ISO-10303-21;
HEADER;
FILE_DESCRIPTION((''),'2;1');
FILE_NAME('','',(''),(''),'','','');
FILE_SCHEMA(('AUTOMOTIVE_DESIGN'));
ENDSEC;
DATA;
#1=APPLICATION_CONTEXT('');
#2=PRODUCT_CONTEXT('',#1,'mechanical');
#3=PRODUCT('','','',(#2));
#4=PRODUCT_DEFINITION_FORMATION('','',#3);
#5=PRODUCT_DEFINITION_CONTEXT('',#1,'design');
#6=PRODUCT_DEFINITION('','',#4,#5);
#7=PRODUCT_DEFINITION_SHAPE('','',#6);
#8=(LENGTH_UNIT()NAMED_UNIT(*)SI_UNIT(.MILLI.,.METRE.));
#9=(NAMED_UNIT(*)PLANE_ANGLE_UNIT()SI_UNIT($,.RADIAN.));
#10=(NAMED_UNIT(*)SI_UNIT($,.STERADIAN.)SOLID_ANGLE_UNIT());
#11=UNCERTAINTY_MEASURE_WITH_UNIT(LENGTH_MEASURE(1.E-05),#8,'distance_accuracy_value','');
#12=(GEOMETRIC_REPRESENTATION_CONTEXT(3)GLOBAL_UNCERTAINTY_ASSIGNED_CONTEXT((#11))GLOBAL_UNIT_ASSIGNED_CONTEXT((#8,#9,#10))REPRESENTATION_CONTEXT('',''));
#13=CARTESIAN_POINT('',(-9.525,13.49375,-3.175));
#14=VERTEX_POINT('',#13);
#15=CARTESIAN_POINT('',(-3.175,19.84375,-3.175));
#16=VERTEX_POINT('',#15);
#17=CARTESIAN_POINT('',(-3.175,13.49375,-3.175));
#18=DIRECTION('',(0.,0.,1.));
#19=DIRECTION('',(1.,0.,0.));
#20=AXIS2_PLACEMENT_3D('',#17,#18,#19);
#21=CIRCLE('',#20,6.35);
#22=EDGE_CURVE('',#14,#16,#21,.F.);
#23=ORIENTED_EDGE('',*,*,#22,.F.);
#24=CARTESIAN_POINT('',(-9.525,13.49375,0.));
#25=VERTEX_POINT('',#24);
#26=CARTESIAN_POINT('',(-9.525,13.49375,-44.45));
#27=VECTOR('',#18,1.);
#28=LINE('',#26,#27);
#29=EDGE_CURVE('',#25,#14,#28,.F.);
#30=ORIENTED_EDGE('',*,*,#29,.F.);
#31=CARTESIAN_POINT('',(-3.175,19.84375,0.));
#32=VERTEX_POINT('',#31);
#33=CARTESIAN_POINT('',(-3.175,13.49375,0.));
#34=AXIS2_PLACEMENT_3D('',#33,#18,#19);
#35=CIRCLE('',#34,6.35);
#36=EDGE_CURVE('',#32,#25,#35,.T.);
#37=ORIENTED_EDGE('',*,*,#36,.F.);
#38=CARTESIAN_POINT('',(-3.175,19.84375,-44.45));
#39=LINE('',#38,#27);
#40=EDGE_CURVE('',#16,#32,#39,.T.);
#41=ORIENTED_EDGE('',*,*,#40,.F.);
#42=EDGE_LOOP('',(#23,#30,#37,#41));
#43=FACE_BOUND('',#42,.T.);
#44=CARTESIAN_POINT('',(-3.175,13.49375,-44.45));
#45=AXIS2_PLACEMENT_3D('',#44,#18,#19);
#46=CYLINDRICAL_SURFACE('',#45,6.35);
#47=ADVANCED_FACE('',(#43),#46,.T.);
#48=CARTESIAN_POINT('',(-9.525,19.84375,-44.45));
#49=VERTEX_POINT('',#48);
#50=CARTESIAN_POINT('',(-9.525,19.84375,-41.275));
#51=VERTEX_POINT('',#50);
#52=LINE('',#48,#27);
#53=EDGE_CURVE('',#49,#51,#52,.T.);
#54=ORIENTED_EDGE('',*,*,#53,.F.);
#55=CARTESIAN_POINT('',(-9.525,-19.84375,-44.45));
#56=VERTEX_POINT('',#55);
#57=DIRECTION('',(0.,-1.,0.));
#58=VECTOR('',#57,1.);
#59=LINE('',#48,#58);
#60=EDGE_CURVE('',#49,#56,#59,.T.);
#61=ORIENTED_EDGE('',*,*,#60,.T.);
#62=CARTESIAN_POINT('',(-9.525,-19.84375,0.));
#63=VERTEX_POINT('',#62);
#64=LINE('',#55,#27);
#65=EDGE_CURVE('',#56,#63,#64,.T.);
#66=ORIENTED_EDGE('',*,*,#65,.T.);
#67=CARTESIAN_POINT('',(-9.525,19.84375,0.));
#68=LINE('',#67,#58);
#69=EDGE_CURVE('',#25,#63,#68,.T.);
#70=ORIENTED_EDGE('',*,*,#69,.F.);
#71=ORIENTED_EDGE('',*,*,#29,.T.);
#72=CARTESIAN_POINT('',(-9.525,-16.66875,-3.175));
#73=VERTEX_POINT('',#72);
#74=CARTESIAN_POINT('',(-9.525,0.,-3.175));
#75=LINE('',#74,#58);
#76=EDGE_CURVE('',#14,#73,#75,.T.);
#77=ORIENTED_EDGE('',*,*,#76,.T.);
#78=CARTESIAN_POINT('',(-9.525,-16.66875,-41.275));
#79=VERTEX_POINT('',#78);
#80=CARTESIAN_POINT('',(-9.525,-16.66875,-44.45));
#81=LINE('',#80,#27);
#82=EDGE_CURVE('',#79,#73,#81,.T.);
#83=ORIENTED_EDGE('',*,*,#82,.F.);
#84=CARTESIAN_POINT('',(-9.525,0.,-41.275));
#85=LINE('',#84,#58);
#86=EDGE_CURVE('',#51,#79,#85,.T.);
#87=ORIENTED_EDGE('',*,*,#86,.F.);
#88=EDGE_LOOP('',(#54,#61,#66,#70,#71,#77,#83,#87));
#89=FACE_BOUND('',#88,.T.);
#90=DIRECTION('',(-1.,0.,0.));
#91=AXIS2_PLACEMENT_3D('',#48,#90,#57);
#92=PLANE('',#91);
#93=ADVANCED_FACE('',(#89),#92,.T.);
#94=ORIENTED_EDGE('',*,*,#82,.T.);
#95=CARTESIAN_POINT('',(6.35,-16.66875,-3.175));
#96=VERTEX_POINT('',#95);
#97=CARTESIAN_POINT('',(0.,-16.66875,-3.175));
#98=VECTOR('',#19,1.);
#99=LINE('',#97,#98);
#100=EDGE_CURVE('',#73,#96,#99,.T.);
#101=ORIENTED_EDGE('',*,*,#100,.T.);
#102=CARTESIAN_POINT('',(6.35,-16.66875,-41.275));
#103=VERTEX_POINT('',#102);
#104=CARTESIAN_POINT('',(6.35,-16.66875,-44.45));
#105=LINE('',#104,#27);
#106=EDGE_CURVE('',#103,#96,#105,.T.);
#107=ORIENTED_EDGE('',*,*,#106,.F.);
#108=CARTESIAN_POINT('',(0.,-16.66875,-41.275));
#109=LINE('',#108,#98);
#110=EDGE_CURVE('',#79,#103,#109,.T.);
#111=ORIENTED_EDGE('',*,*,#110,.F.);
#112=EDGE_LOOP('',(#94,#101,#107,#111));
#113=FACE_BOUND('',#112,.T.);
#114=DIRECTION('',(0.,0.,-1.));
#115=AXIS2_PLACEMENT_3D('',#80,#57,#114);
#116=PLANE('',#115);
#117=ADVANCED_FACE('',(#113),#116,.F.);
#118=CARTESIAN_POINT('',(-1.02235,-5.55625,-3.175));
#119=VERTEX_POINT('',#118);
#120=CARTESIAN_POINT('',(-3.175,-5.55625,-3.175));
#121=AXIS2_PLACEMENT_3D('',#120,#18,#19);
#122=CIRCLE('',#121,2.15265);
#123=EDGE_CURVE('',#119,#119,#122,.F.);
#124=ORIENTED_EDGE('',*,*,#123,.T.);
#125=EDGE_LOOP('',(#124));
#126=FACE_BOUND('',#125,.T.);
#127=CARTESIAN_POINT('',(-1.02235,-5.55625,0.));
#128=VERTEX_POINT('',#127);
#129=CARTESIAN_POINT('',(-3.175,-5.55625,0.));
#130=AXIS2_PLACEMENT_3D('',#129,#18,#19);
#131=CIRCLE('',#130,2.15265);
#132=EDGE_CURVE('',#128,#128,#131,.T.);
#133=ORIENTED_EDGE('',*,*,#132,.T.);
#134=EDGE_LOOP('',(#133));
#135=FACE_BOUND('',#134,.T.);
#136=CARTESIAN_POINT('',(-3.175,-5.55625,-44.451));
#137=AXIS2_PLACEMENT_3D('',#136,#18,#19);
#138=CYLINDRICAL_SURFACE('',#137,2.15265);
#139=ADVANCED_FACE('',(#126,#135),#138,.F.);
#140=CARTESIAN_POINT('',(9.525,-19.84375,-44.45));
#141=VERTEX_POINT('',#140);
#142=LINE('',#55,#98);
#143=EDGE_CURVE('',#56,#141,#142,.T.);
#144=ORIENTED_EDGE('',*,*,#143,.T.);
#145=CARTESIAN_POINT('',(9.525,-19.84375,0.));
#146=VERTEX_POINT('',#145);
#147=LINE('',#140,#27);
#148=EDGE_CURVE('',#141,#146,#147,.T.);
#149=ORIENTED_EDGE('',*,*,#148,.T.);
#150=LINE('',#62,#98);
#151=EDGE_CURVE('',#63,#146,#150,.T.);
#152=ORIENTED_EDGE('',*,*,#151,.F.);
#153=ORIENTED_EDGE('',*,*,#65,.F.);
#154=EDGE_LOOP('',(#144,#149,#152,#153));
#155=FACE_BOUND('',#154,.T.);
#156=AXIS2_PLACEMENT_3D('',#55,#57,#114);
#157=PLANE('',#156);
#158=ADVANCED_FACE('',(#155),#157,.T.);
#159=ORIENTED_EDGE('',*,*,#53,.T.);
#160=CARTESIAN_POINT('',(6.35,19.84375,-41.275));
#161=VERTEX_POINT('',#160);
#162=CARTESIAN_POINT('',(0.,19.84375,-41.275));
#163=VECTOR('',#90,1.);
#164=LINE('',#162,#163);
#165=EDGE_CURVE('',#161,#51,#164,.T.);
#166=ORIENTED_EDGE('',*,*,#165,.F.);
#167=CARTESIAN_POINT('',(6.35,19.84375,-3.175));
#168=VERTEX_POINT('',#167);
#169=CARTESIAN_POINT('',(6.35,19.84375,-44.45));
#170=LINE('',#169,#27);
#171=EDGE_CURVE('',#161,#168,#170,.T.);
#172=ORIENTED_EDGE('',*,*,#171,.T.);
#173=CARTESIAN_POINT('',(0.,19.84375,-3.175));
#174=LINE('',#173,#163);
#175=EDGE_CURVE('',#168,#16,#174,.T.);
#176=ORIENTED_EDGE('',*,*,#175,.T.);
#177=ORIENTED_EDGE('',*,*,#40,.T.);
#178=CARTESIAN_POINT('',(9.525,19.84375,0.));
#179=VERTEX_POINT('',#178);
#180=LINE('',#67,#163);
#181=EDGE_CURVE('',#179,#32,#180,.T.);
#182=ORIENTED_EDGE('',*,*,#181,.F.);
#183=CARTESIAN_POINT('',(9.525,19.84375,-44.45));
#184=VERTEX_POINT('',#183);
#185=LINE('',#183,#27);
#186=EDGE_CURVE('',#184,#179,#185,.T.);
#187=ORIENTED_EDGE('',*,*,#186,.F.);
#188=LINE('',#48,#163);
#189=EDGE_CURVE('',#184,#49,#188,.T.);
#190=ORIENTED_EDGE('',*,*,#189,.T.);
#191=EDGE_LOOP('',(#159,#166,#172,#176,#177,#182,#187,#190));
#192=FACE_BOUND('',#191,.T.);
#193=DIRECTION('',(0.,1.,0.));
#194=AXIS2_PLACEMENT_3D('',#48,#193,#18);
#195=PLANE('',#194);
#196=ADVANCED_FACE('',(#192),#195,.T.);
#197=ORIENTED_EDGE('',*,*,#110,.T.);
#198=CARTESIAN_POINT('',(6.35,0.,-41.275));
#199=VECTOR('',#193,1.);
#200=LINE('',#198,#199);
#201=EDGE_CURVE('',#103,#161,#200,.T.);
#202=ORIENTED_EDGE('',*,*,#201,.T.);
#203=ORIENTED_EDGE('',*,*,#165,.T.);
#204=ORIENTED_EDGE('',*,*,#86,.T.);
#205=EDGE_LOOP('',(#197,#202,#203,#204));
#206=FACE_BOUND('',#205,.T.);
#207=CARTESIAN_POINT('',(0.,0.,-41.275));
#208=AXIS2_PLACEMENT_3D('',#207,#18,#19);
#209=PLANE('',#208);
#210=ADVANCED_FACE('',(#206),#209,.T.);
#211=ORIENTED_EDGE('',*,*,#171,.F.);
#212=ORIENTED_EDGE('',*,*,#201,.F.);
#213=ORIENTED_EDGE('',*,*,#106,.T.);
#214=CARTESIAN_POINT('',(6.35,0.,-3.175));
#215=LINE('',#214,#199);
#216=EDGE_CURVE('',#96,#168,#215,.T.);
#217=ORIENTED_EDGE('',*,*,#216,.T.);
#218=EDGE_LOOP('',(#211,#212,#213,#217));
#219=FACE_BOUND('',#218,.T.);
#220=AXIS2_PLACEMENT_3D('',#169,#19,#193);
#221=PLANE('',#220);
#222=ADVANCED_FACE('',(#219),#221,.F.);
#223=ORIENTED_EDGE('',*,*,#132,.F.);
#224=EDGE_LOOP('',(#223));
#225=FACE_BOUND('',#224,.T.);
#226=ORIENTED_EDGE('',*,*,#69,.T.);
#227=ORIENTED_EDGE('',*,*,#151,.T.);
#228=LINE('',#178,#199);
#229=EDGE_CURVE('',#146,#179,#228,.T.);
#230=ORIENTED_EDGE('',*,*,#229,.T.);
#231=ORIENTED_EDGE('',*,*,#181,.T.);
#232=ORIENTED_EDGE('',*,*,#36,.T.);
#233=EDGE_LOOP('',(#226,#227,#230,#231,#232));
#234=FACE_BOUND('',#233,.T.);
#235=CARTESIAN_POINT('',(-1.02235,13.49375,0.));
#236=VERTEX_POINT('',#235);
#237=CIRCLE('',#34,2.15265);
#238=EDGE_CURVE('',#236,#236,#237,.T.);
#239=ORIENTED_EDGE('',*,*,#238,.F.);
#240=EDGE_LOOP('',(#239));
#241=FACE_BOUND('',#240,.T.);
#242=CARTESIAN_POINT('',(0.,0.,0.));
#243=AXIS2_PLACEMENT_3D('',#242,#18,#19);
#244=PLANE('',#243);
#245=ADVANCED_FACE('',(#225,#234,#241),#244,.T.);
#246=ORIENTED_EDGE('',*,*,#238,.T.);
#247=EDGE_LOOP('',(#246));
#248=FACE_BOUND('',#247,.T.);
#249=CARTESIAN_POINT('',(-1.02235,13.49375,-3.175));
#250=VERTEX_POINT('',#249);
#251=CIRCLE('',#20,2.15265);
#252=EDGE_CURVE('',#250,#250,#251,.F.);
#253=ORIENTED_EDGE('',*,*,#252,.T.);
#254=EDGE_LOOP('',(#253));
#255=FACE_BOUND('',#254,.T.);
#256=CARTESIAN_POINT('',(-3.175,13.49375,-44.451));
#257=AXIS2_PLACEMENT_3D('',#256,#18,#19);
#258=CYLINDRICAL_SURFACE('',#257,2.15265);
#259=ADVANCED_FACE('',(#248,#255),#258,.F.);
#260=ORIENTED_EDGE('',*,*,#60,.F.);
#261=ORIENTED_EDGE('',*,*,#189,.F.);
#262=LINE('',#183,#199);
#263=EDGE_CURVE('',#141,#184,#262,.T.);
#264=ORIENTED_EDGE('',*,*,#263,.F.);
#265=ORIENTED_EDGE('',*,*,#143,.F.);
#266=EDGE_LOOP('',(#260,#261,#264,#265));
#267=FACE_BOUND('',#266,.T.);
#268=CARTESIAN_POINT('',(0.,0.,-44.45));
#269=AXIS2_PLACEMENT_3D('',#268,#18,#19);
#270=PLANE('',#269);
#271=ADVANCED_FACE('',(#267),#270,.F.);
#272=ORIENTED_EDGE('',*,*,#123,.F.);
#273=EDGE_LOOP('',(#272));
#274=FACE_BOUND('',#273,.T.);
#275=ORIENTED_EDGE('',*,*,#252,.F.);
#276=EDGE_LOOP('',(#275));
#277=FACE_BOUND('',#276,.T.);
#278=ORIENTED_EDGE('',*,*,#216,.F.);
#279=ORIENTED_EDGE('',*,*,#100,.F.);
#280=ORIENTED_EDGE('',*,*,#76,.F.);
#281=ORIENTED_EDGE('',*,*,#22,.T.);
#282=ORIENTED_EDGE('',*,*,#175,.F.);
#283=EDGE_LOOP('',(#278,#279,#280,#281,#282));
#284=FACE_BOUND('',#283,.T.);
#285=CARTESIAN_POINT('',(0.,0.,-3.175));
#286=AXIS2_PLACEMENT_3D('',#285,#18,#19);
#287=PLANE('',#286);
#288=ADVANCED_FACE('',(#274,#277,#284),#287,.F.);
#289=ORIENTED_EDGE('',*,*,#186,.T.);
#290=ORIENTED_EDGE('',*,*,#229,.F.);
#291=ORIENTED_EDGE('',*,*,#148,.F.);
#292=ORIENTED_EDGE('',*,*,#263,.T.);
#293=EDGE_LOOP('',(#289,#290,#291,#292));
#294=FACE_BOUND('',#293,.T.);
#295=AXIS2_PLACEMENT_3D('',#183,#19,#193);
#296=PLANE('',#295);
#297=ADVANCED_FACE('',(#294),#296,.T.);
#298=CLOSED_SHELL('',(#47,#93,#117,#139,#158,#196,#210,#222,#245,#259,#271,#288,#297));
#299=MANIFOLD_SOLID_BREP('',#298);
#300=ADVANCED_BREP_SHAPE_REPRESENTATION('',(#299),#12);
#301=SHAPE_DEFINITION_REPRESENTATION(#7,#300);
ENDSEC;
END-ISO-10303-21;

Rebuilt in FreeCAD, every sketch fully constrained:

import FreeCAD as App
import Part
import Sketcher
Q = App.Units.Quantity


def edges_at(feature, points):
    """Names of the edges that pass closest to the given points."""
    edges = feature.Shape.Edges
    near = lambda p: min(range(len(edges)), key=lambda i: edges[i].distToShape(Part.Vertex(*p))[0])
    return sorted({f"Edge{near(p) + 1}" for p in points})


def faces_at(feature, points):
    """Names of the faces that lie closest to the given points."""
    faces = feature.Shape.Faces
    near = lambda p: min(range(len(faces)), key=lambda i: faces[i].distToShape(Part.Vertex(*p))[0])
    return sorted({f"Face{near(p) + 1}" for p in points})


def add_polygon(sketch, points):
    """Adds a closed chain of lines whose ends are joined by coincident constraints."""
    first, n = sketch.GeometryCount, len(points)
    for a, b in zip(points, points[1:] + points[:1]):
        sketch.addGeometry(Part.LineSegment(App.Vector(*a, 0), App.Vector(*b, 0)), False)
    for i in range(n):
        sketch.addConstraint(Sketcher.Constraint("Coincident", first + i, 2, first + (i + 1) % n, 1))

doc = App.newDocument("Part")
params = doc.addObject("Spreadsheet::Sheet", "Params")
for row, (alias, value) in enumerate([
    ("sketch1_width", "0.75 in"),
    ("sketch1_height", "1.5625 in"),
    ("pad1_length", "1.75 in"),
    ("thickness_wall", "0.125 in"),
    ("fillet_radius", "0.25 in"),
], start=1):
    params.set(f"A{row}", alias)
    params.set(f"B{row}", "=" + value)
    params.setAlias(f"B{row}", alias)

body = doc.addObject("PartDesign::Body", "Body")

# Sketch on XY plane
sketch1 = body.newObject("Sketcher::SketchObject", "Sketch")
sketch1.AttachmentSupport = (doc.getObject("XY_Plane"), [""])
sketch1.MapMode = "FlatFace"
add_polygon(sketch1, [(-9.525, 19.84375), (-9.525, -19.84375), (9.525, -19.84375), (9.525, 19.84375)])  # lines 0-3
sketch1.addConstraint(Sketcher.Constraint("Vertical", 0))
sketch1.addConstraint(Sketcher.Constraint("Horizontal", 1))
sketch1.addConstraint(Sketcher.Constraint("Vertical", 2))
sketch1.addConstraint(Sketcher.Constraint("Horizontal", 3))
sketch1.addConstraint(Sketcher.Constraint("Symmetric", 0, 2, 2, 2, -1, 1))
sketch1.addConstraint(Sketcher.Constraint("DistanceX", 1, 1, 1, 2, Q("0.75 in")))
sketch1.addConstraint(Sketcher.Constraint("DistanceY", 0, 2, 0, 1, Q("1.5625 in")))
sketch1.setExpression("Constraints[9]", "Params.sketch1_width")
sketch1.setExpression("Constraints[10]", "Params.sketch1_height")
pad1 = body.newObject("PartDesign::Pad", "Pad")
pad1.Profile = sketch1
pad1.setExpression("Length", "Params.pad1_length")
pad1.Reversed = True
doc.recompute()

thickness = body.newObject("PartDesign::Thickness", "Thickness")
thickness.Base = (pad1, faces_at(pad1, [(-9.525, 0, -22.225), (0, 19.844, -22.225)]))
thickness.setExpression("Value", "Params.thickness_wall")
thickness.Reversed = True
thickness.Join = "Intersection"

# Sketch on XY plane
sketch2 = body.newObject("Sketcher::SketchObject", "Sketch001")
sketch2.AttachmentSupport = (doc.getObject("XY_Plane"), [""])
sketch2.MapMode = "FlatFace"
sketch2.addGeometry(Part.Circle(App.Vector(-3.175, -5.55625, 0), App.Vector(0, 0, 1), 2.15265), False)
sketch2.addConstraint(Sketcher.Constraint("Diameter", 0, Q("0.1695 in")))
sketch2.addConstraint(Sketcher.Constraint("DistanceX", 0, 3, -1, 1, Q("0.125 in")))
sketch2.addConstraint(Sketcher.Constraint("DistanceY", 0, 3, -1, 1, Q("0.21875 in")))
pocket1 = body.newObject("PartDesign::Pocket", "Pocket")
pocket1.Profile = sketch2
pocket1.Type = "UpToFirst"

# Sketch on XY plane
sketch3 = body.newObject("Sketcher::SketchObject", "Sketch002")
sketch3.AttachmentSupport = (doc.getObject("XY_Plane"), [""])
sketch3.MapMode = "FlatFace"
sketch3.addGeometry(Part.Circle(App.Vector(-3.175, 13.49375, 0), App.Vector(0, 0, 1), 2.15265), False)
sketch3.addConstraint(Sketcher.Constraint("Diameter", 0, Q("0.1695 in")))
sketch3.addConstraint(Sketcher.Constraint("DistanceX", 0, 3, -1, 1, Q("0.125 in")))
sketch3.addConstraint(Sketcher.Constraint("DistanceY", -1, 1, 0, 3, Q("0.53125 in")))
pocket2 = body.newObject("PartDesign::Pocket", "Pocket001")
pocket2.Profile = sketch3
pocket2.Type = "UpToFirst"
doc.recompute()

fillet = body.newObject("PartDesign::Fillet", "Fillet")
fillet.Base = (pocket2, edges_at(pocket2, [(-9.525, 19.844, -1.587)]))
fillet.setExpression("Radius", "Params.fillet_radius")

doc.recompute()
